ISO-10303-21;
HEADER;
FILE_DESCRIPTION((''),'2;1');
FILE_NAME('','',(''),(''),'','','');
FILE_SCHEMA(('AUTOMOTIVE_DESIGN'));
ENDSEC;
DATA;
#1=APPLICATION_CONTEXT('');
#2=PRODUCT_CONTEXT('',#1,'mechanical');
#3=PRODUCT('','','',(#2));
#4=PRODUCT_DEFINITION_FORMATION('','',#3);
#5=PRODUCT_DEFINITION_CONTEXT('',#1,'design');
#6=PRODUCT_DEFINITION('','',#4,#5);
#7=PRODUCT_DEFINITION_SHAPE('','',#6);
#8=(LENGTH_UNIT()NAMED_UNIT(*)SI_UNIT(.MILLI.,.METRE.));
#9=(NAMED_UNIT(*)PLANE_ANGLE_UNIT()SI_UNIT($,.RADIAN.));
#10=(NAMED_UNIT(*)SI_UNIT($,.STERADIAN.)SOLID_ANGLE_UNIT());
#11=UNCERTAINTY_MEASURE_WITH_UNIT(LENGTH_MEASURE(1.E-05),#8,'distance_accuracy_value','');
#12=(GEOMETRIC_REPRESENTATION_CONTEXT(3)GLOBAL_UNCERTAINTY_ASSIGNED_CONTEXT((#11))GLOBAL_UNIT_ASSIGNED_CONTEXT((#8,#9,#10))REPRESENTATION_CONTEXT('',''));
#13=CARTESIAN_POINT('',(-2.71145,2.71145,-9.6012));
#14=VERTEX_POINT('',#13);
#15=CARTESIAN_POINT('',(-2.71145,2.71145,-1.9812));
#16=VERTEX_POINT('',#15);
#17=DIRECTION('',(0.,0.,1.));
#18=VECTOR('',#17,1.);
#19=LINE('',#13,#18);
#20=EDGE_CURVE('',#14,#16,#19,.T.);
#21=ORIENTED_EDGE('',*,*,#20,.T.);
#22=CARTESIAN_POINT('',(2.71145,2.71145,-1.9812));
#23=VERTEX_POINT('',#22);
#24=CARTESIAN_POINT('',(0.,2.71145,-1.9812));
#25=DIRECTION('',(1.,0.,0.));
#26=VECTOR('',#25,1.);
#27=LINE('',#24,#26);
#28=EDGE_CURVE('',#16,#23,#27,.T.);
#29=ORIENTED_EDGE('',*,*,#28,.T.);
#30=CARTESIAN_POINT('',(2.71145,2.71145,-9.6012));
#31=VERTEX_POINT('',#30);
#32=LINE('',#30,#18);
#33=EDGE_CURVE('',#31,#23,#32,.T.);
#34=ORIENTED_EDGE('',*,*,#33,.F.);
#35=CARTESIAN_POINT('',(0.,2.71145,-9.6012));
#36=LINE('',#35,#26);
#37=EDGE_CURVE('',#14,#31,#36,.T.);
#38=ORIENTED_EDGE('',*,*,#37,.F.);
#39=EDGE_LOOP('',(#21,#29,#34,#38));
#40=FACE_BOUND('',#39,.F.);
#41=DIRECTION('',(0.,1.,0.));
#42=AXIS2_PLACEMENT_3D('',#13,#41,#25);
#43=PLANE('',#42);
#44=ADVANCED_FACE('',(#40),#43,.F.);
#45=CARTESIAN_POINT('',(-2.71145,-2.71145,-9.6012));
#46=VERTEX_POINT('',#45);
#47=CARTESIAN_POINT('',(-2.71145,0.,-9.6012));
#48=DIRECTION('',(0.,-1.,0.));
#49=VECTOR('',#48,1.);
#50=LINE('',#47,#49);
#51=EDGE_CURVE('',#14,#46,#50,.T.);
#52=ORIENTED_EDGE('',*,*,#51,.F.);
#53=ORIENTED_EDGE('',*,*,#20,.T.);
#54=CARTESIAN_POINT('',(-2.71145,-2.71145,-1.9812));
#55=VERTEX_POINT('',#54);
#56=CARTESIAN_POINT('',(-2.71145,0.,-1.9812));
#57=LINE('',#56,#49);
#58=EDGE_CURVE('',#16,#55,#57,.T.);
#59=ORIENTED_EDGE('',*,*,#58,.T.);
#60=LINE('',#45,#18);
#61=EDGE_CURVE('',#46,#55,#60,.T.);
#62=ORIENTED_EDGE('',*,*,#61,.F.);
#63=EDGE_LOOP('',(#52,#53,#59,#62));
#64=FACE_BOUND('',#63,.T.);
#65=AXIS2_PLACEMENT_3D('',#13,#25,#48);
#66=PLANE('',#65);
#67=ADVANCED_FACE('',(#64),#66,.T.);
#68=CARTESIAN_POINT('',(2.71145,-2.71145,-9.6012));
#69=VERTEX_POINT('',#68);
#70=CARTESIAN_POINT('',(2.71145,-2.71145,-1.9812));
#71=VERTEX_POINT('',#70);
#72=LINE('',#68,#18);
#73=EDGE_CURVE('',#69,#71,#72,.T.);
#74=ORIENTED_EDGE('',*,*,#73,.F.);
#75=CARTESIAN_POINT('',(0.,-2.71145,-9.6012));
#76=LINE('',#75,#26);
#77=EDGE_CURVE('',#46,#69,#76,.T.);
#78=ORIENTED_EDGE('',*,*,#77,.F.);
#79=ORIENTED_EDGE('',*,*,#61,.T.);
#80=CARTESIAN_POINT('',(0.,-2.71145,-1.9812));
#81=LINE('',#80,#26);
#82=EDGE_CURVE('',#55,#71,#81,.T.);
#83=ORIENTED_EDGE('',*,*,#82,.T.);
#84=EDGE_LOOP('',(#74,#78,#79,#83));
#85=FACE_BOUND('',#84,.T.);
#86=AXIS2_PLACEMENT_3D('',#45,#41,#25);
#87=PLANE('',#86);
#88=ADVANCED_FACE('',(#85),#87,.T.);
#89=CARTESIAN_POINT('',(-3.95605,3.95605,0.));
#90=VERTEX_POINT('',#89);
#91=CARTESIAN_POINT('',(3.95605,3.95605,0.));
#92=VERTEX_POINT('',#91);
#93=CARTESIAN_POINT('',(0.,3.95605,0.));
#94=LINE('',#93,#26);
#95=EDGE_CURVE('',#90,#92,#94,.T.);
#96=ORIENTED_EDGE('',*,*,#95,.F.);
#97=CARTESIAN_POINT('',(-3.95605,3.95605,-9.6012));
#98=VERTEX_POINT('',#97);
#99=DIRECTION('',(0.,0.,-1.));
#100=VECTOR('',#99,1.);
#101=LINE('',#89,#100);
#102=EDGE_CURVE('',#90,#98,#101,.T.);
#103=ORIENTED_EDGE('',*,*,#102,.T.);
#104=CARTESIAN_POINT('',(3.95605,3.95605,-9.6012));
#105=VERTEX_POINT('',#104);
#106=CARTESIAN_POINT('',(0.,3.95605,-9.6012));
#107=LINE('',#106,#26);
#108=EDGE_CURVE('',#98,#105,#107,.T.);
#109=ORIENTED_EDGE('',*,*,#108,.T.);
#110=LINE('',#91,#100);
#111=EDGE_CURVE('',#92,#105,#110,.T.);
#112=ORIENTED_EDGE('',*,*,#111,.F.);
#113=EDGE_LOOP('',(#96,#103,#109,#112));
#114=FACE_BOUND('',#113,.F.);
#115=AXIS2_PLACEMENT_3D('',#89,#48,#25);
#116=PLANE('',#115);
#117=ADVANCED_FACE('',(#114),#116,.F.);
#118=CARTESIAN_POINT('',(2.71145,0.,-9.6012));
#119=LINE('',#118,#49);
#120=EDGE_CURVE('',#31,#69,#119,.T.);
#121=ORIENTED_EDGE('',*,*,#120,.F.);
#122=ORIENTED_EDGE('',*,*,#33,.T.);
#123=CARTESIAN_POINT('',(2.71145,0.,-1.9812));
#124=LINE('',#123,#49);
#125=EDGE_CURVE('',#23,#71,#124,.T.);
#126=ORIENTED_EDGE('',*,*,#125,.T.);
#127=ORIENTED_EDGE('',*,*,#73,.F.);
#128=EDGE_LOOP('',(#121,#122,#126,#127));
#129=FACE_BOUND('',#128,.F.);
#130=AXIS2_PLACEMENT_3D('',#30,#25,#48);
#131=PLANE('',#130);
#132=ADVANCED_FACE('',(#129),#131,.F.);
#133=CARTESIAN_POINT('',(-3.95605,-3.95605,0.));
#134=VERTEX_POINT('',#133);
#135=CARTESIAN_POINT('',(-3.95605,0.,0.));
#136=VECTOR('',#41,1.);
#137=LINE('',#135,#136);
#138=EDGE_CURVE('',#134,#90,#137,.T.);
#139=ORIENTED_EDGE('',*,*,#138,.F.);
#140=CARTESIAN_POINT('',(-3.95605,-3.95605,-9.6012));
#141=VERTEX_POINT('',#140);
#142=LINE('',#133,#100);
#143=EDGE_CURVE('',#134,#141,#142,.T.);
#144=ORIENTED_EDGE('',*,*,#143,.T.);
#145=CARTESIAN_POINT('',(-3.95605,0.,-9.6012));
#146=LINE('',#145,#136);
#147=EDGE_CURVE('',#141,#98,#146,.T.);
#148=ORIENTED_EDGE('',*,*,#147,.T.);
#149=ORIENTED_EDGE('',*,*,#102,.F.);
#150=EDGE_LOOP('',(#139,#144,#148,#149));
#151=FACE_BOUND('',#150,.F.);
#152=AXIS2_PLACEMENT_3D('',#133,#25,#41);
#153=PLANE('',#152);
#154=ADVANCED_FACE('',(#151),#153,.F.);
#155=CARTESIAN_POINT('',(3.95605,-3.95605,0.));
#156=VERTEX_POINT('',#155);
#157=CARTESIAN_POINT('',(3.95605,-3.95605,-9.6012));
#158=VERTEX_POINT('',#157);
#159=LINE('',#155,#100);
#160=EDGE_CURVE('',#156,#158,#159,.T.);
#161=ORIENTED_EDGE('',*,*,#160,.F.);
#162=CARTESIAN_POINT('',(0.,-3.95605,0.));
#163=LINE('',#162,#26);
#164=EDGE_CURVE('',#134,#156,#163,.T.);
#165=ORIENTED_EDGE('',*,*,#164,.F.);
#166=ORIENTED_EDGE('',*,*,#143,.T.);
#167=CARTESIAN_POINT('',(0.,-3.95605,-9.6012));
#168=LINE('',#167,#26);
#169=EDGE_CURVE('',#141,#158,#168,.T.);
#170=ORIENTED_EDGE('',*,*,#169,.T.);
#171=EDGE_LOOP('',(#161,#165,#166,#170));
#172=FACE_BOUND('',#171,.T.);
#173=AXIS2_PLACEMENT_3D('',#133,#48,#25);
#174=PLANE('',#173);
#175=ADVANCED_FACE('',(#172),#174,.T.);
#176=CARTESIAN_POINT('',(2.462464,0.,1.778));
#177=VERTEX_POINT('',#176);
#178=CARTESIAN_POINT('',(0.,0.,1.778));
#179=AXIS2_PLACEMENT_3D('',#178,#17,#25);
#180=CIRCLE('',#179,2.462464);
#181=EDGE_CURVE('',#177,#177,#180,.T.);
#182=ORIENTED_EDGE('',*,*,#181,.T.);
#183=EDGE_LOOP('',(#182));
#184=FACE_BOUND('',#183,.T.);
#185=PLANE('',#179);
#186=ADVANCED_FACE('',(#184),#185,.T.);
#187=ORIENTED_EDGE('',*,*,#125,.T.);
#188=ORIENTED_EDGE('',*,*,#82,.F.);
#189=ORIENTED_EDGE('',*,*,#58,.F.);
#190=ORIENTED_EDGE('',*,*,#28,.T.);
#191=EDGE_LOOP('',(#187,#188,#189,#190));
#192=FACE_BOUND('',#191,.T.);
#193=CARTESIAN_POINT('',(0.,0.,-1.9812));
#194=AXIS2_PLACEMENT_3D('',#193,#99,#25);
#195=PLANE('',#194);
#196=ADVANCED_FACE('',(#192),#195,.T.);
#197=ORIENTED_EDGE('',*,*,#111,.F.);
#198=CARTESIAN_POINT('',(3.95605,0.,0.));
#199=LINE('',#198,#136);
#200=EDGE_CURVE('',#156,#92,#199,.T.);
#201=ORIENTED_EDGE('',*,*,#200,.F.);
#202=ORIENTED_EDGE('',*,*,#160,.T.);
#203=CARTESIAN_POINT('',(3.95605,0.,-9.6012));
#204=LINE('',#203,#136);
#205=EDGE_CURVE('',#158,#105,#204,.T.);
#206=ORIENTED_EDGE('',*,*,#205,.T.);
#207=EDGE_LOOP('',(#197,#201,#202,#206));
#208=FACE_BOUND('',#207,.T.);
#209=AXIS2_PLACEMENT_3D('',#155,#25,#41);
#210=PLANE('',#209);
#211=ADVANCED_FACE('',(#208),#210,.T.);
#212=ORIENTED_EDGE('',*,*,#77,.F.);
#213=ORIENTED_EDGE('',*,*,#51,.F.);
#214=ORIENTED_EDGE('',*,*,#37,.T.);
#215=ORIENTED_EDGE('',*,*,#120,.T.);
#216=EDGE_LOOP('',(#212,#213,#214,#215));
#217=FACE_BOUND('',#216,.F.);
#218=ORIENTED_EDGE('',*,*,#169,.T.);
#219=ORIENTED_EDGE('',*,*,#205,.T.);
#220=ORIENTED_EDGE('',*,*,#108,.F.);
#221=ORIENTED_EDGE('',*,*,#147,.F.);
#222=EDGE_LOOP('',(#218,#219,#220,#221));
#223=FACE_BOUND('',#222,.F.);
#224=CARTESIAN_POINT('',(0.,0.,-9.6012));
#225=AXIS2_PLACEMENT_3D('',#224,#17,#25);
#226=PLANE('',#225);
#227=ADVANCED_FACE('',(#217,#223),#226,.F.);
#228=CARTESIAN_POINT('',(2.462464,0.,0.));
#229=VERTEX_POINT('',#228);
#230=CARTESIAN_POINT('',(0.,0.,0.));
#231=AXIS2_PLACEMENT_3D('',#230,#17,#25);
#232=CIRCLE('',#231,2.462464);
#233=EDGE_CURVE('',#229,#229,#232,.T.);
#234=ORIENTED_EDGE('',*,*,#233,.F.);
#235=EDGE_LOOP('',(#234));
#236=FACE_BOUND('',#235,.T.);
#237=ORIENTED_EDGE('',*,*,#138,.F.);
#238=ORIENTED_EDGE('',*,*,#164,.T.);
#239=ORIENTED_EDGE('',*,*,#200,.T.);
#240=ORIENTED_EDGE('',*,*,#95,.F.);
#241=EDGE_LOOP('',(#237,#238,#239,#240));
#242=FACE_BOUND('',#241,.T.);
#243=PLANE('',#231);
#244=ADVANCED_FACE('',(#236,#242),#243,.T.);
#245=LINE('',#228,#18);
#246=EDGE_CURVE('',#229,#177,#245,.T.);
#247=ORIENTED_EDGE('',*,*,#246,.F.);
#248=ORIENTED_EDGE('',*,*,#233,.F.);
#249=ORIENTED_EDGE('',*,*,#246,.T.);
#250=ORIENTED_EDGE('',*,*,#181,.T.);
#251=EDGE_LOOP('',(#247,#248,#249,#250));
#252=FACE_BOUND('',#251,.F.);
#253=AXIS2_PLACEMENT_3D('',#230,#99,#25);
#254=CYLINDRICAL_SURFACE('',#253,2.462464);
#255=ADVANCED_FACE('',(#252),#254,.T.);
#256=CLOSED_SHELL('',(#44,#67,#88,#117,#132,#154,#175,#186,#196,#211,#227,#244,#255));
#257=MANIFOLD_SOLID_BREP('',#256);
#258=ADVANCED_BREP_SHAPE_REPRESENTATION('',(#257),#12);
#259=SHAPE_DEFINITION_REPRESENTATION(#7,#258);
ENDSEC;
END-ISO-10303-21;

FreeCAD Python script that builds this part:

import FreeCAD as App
import Part
import Sketcher
from FreeCAD import Vector
Q = App.Units.Quantity

doc = App.newDocument("Part")
body = doc.addObject("PartDesign::Body", "Body")

sketch1 = doc.addObject("Sketcher::SketchObject", "Sketch")
body.addObject(sketch1)
sketch1.AttachmentSupport = (doc.XY_Plane, [""])
sketch1.MapMode = "FlatFace"
sketch1.addGeometry(Part.LineSegment(Vector(-4, 4, 0), Vector(-4, -4, 0)), False)
sketch1.addGeometry(Part.LineSegment(Vector(-4, -4, 0), Vector(4, -4, 0)), False)
sketch1.addGeometry(Part.LineSegment(Vector(4, -4, 0), Vector(4, 4, 0)), False)
sketch1.addGeometry(Part.LineSegment(Vector(4, 4, 0), Vector(-4, 4, 0)), False)
sketch1.addConstraint(Sketcher.Constraint("Coincident", 0, 2, 1, 1))
sketch1.addConstraint(Sketcher.Constraint("Coincident", 1, 2, 2, 1))
sketch1.addConstraint(Sketcher.Constraint("Coincident", 2, 2, 3, 1))
sketch1.addConstraint(Sketcher.Constraint("Coincident", 3, 2, 0, 1))
sketch1.addConstraint(Sketcher.Constraint("Vertical", 0))
sketch1.addConstraint(Sketcher.Constraint("Horizontal", 1))
sketch1.addConstraint(Sketcher.Constraint("Vertical", 2))
sketch1.addConstraint(Sketcher.Constraint("Horizontal", 3))
sketch1.addConstraint(Sketcher.Constraint("Symmetric", 0, 2, 2, 2, -1, 1))
sketch1.addConstraint(Sketcher.Constraint("Equal", 3, 0))
sketch1.addConstraint(Sketcher.Constraint("DistanceX", 1, 1, 1, 2, Q("0.3115 in")))
pad1 = doc.addObject("PartDesign::Pad", "Pad")
body.addObject(pad1)
pad1.Profile = sketch1
pad1.Length = Q("0.378 in")
pad1.Reversed = True

sketch2 = doc.addObject("Sketcher::SketchObject", "Sketch001")
body.addObject(sketch2)
sketch2.AttachmentSupport = (doc.XY_Plane, [""])
sketch2.MapMode = "FlatFace"
sketch2.addGeometry(Part.Circle(Vector(0, 0, 0), Vector(0, 0, 1), 2.5), False)
sketch2.addConstraint(Sketcher.Constraint("Coincident", 0, 3, -1, 1))
sketch2.addConstraint(Sketcher.Constraint("Diameter", 0, Q("4.924928 mm")))
pad2 = doc.addObject("PartDesign::Pad", "Pad001")
body.addObject(pad2)
pad2.Profile = sketch2
pad2.Length = Q("0.07 in")

sketch3 = doc.addObject("Sketcher::SketchObject", "Sketch002")
body.addObject(sketch3)
sketch3.AttachmentSupport = (doc.XY_Plane, [""])
sketch3.MapMode = "FlatFace"
sketch3.AttachmentOffset = App.Placement(Vector(0, 0, -0.378 * 25.4), App.Rotation())
sketch3.addGeometry(Part.LineSegment(Vector(-3, -3, 0), Vector(-3, 3, 0)), False)
sketch3.addGeometry(Part.LineSegment(Vector(-3, 3, 0), Vector(3, 3, 0)), False)
sketch3.addGeometry(Part.LineSegment(Vector(3, 3, 0), Vector(3, -3, 0)), False)
sketch3.addGeometry(Part.LineSegment(Vector(3, -3, 0), Vector(-3, -3, 0)), False)
sketch3.addConstraint(Sketcher.Constraint("Coincident", 0, 2, 1, 1))
sketch3.addConstraint(Sketcher.Constraint("Coincident", 1, 2, 2, 1))
sketch3.addConstraint(Sketcher.Constraint("Coincident", 2, 2, 3, 1))
sketch3.addConstraint(Sketcher.Constraint("Coincident", 3, 2, 0, 1))
sketch3.addConstraint(Sketcher.Constraint("Vertical", 0))
sketch3.addConstraint(Sketcher.Constraint("Horizontal", 1))
sketch3.addConstraint(Sketcher.Constraint("Vertical", 2))
sketch3.addConstraint(Sketcher.Constraint("Horizontal", 3))
sketch3.addConstraint(Sketcher.Constraint("Symmetric", 0, 2, 2, 2, -1, 1))
sketch3.addConstraint(Sketcher.Constraint("Equal", 3, 0))
sketch3.addConstraint(Sketcher.Constraint("DistanceX", 1, 1, 1, 2, Q("0.2135 in")))
pocket1 = doc.addObject("PartDesign::Pocket", "Pocket")
body.addObject(pocket1)
pocket1.Profile = sketch3
pocket1.Length = Q("0.3 in")
pocket1.Reversed = True

doc.recompute()
